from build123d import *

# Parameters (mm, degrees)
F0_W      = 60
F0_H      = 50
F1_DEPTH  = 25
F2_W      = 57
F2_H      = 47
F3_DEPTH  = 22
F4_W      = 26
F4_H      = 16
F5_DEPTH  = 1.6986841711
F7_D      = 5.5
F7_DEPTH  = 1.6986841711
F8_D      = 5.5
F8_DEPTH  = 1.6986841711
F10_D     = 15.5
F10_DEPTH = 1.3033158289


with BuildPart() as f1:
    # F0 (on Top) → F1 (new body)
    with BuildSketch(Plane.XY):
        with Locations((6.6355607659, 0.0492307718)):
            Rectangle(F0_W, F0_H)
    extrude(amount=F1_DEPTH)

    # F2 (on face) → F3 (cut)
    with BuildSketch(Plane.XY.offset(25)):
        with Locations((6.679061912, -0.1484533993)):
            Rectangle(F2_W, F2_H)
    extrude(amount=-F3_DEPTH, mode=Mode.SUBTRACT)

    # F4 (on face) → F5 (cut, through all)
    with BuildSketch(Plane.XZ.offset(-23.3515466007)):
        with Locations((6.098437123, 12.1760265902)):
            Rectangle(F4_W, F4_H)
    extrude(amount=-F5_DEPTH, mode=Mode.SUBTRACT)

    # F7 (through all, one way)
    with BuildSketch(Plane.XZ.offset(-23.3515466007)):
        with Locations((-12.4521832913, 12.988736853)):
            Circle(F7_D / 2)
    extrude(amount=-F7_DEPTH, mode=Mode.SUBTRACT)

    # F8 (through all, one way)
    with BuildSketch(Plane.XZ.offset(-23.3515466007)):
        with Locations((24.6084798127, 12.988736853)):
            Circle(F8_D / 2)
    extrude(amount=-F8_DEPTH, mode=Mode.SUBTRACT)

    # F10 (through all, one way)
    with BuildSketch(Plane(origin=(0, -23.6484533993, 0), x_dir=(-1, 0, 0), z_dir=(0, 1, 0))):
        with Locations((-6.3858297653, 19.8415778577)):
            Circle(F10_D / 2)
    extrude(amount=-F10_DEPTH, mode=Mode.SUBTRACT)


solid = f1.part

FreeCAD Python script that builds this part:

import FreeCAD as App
import Part
import Sketcher

V = App.Vector


def add_polygon(sketch, points):
    """Adds a closed chain of lines whose ends are joined by coincident constraints."""
    first, n = sketch.GeometryCount, len(points)
    for a, b in zip(points, points[1:] + points[:1]):
        sketch.addGeometry(Part.LineSegment(App.Vector(*a, 0), App.Vector(*b, 0)), False)
    for i in range(n):
        sketch.addConstraint(Sketcher.Constraint("Coincident", first + i, 2, first + (i + 1) % n, 1))

doc = App.newDocument("Part")
body = doc.addObject("PartDesign::Body", "Body")

# Sketch on XY plane
sketch1 = doc.addObject("Sketcher::SketchObject", "Sketch")
body.addObject(sketch1)
sketch1.AttachmentSupport = (doc.XY_Plane, [""])
sketch1.MapMode = "FlatFace"
add_polygon(sketch1, [(-23.364439, 25.049231), (-23.364439, -24.950769), (36.635561, -24.950769), (36.635561, 25.049231)])  # lines 0-3
sketch1.addConstraint([
    Sketcher.Constraint("Vertical", 0),
    Sketcher.Constraint("Horizontal", 1),
    Sketcher.Constraint("Vertical", 2),
    Sketcher.Constraint("Horizontal", 3),
    Sketcher.Constraint("DistanceX", 1, 1, 1, 2, 60.0),
    Sketcher.Constraint("DistanceY", 0, 2, 0, 1, 50.0),
    Sketcher.Constraint("DistanceX", 0, 2, -1, 1, 23.364439),
    Sketcher.Constraint("DistanceY", 0, 2, -1, 1, 24.950769),
])
pad1 = doc.addObject("PartDesign::Pad", "Pad")
body.addObject(pad1)
pad1.Profile = sketch1
pad1.Length = 25

# Sketch on XY plane
sketch2 = doc.addObject("Sketcher::SketchObject", "Sketch001")
body.addObject(sketch2)
sketch2.AttachmentSupport = (doc.XY_Plane, [""])
sketch2.MapMode = "FlatFace"
sketch2.AttachmentOffset = App.Placement(V(0, 0, 25), App.Rotation())
add_polygon(sketch2, [(-21.820938, 23.351547), (-21.820938, -23.648453), (35.179062, -23.648453), (35.179062, 23.351547)])  # lines 0-3
sketch2.addConstraint([
    Sketcher.Constraint("Vertical", 0),
    Sketcher.Constraint("Horizontal", 1),
    Sketcher.Constraint("Vertical", 2),
    Sketcher.Constraint("Horizontal", 3),
    Sketcher.Constraint("DistanceX", 1, 1, 1, 2, 57.0),
    Sketcher.Constraint("DistanceY", 0, 2, 0, 1, 47.0),
    Sketcher.Constraint("DistanceX", 0, 2, -1, 1, 21.820938),
    Sketcher.Constraint("DistanceY", 0, 2, -1, 1, 23.648453),
])
pocket1 = doc.addObject("PartDesign::Pocket", "Pocket")
body.addObject(pocket1)
pocket1.Profile = sketch2
pocket1.Length = 22

# Sketch on XZ plane
sketch3 = doc.addObject("Sketcher::SketchObject", "Sketch002")
body.addObject(sketch3)
sketch3.AttachmentSupport = (doc.XZ_Plane, [""])
sketch3.MapMode = "FlatFace"
sketch3.AttachmentOffset = App.Placement(V(0, 0, -23.351547), App.Rotation())
add_polygon(sketch3, [(-6.901563, 20.176027), (-6.901563, 4.176027), (19.098437, 4.176027), (19.098437, 20.176027)])  # lines 0-3
sketch3.addConstraint([
    Sketcher.Constraint("Vertical", 0),
    Sketcher.Constraint("Horizontal", 1),
    Sketcher.Constraint("Vertical", 2),
    Sketcher.Constraint("Horizontal", 3),
    Sketcher.Constraint("DistanceX", 1, 1, 1, 2, 26.0),
    Sketcher.Constraint("DistanceY", 0, 2, 0, 1, 16.0),
    Sketcher.Constraint("DistanceX", 0, 2, -1, 1, 6.901563),
    Sketcher.Constraint("DistanceY", -1, 1, 0, 2, 4.176027),
])
pocket2 = doc.addObject("PartDesign::Pocket", "Pocket001")
body.addObject(pocket2)
pocket2.Profile = sketch3
pocket2.Type = "ThroughAll"

# Sketch on XZ plane
sketch4 = doc.addObject("Sketcher::SketchObject", "Sketch003")
body.addObject(sketch4)
sketch4.AttachmentSupport = (doc.XZ_Plane, [""])
sketch4.MapMode = "FlatFace"
sketch4.AttachmentOffset = App.Placement(V(0, 0, -23.351547), App.Rotation())
sketch4.addGeometry(Part.Circle(V(-12.452183, 12.988737, 0), V(0, 0, 1), 2.75), False)
sketch4.addConstraint([
    Sketcher.Constraint("Diameter", 0, 5.5),
    Sketcher.Constraint("DistanceX", 0, 3, -1, 1, 12.452183),
    Sketcher.Constraint("DistanceY", -1, 1, 0, 3, 12.988737),
])
pocket3 = doc.addObject("PartDesign::Pocket", "Pocket002")
body.addObject(pocket3)
pocket3.Profile = sketch4
pocket3.Type = "ThroughAll"

# Sketch on XZ plane
sketch5 = doc.addObject("Sketcher::SketchObject", "Sketch004")
body.addObject(sketch5)
sketch5.AttachmentSupport = (doc.XZ_Plane, [""])
sketch5.MapMode = "FlatFace"
sketch5.AttachmentOffset = App.Placement(V(0, 0, -23.351547), App.Rotation())
sketch5.addGeometry(Part.Circle(V(24.60848, 12.988737, 0), V(0, 0, 1), 2.75), False)
sketch5.addConstraint([
    Sketcher.Constraint("Diameter", 0, 5.5),
    Sketcher.Constraint("DistanceX", -1, 1, 0, 3, 24.60848),
    Sketcher.Constraint("DistanceY", -1, 1, 0, 3, 12.988737),
])
pocket4 = doc.addObject("PartDesign::Pocket", "Pocket003")
body.addObject(pocket4)
pocket4.Profile = sketch5
pocket4.Type = "ThroughAll"

# Sketch on XZ plane
sketch6 = doc.addObject("Sketcher::SketchObject", "Sketch005")
body.addObject(sketch6)
sketch6.AttachmentSupport = (doc.XZ_Plane, [""])
sketch6.MapMode = "FlatFace"
sketch6.AttachmentOffset = App.Placement(V(0, 0, 23.648453), App.Rotation())
sketch6.addGeometry(Part.Circle(V(6.38583, 19.841578, 0), V(0, 0, 1), 7.75), False)
sketch6.addConstraint([
    Sketcher.Constraint("Diameter", 0, 15.5),
    Sketcher.Constraint("DistanceX", -1, 1, 0, 3, 6.38583),
    Sketcher.Constraint("DistanceY", -1, 1, 0, 3, 19.841578),
])
pocket5 = doc.addObject("PartDesign::Pocket", "Pocket004")
body.addObject(pocket5)
pocket5.Profile = sketch6
pocket5.Type = "ThroughAll"
pocket5.Reversed = True

doc.recompute()
